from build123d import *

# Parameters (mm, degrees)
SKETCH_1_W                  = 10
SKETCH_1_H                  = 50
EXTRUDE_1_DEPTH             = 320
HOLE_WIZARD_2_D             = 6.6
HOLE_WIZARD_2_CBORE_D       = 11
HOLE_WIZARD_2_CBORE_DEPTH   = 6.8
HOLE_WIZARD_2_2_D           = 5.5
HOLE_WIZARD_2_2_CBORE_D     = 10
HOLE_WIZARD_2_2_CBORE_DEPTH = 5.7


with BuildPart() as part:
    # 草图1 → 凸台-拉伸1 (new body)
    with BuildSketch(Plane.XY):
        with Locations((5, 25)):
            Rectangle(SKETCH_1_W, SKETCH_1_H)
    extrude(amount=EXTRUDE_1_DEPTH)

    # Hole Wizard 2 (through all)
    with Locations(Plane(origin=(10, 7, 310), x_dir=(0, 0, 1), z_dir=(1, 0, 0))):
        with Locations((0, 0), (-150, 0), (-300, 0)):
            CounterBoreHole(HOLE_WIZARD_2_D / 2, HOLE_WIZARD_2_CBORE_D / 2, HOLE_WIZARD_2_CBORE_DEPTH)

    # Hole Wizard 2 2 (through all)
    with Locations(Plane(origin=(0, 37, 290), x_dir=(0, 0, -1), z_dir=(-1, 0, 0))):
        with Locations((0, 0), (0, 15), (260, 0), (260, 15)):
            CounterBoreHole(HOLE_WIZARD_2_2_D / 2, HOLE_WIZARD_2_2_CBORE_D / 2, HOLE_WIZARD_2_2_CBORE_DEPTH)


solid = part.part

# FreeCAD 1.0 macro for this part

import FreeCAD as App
import Part
import Sketcher

doc = App.newDocument("Part")
body = doc.addObject("PartDesign::Body", "Body")

# Sketch on XY plane
sketch1 = body.newObject("Sketcher::SketchObject", "Sketch")
sketch1.AttachmentSupport = (doc.getObject("XY_Plane"), [""])
sketch1.MapMode = "FlatFace"
sketch1.addGeometry(Part.LineSegment(App.Vector(0, 50, 0), App.Vector(0, 0, 0)), False)
sketch1.addGeometry(Part.LineSegment(App.Vector(0, 0, 0), App.Vector(10, 0, 0)), False)
sketch1.addGeometry(Part.LineSegment(App.Vector(10, 0, 0), App.Vector(10, 50, 0)), False)
sketch1.addGeometry(Part.LineSegment(App.Vector(10, 50, 0), App.Vector(0, 50, 0)), False)
sketch1.addConstraint(Sketcher.Constraint("Coincident", 0, 2, 1, 1))
sketch1.addConstraint(Sketcher.Constraint("Coincident", 1, 2, 2, 1))
sketch1.addConstraint(Sketcher.Constraint("Coincident", 2, 2, 3, 1))
sketch1.addConstraint(Sketcher.Constraint("Coincident", 3, 2, 0, 1))
sketch1.addConstraint(Sketcher.Constraint("Vertical", 0))
sketch1.addConstraint(Sketcher.Constraint("Horizontal", 1))
sketch1.addConstraint(Sketcher.Constraint("Vertical", 2))
sketch1.addConstraint(Sketcher.Constraint("Horizontal", 3))
sketch1.addConstraint(Sketcher.Constraint("Coincident", 0, 2, -1, 1))
sketch1.addConstraint(Sketcher.Constraint("DistanceX", 1, 1, 1, 2, 10.0))
sketch1.addConstraint(Sketcher.Constraint("DistanceY", 0, 2, 0, 1, 50.0))
pad1 = body.newObject("PartDesign::Pad", "Pad")
pad1.Profile = sketch1
pad1.Length = 320

# Sketch on YZ plane
sketch2 = body.newObject("Sketcher::SketchObject", "Sketch001")
sketch2.AttachmentSupport = (doc.getObject("YZ_Plane"), [""])
sketch2.MapMode = "FlatFace"
sketch2.AttachmentOffset = App.Placement(App.Vector(0, 0, 10), App.Rotation())
sketch2.addGeometry(Part.Circle(App.Vector(7, 310, 0), App.Vector(0, 0, 1), 3.3), False)
sketch2.addGeometry(Part.Circle(App.Vector(7, 160, 0), App.Vector(0, 0, 1), 3.3), False)
sketch2.addGeometry(Part.Circle(App.Vector(7, 10, 0), App.Vector(0, 0, 1), 3.3), False)
sketch2.addConstraint(Sketcher.Constraint("Equal", 0, 1))
sketch2.addConstraint(Sketcher.Constraint("Equal", 1, 2))
sketch2.addConstraint(Sketcher.Constraint("Vertical", 0, 3, 1, 3))
sketch2.addConstraint(Sketcher.Constraint("Vertical", 1, 3, 2, 3))
sketch2.addConstraint(Sketcher.Constraint("Diameter", 0, 6.6))
sketch2.addConstraint(Sketcher.Constraint("DistanceX", -1, 1, 0, 3, 7.0))
sketch2.addConstraint(Sketcher.Constraint("DistanceY", -1, 1, 0, 3, 310.0))
sketch2.addConstraint(Sketcher.Constraint("DistanceY", -1, 1, 1, 3, 160.0))
sketch2.addConstraint(Sketcher.Constraint("DistanceY", -1, 1, 2, 3, 10.0))
doc.recompute()
hole = body.newObject("PartDesign::Hole", "Hole")
hole.Profile = sketch2
hole.ThreadType = "None"
hole.Diameter = 6.6
hole.DepthType = "ThroughAll"
hole.HoleCutType = "Counterbore"
hole.HoleCutDiameter = 11
hole.HoleCutDepth = 6.8

# Sketch on YZ plane
sketch3 = body.newObject("Sketcher::SketchObject", "Sketch002")
sketch3.AttachmentSupport = (doc.getObject("YZ_Plane"), [""])
sketch3.MapMode = "FlatFace"
sketch3.addGeometry(Part.Circle(App.Vector(37, 290, 0), App.Vector(0, 0, 1), 2.8), False)
sketch3.addGeometry(Part.Circle(App.Vector(22, 290, 0), App.Vector(0, 0, 1), 2.8), False)
sketch3.addGeometry(Part.Circle(App.Vector(37, 30, 0), App.Vector(0, 0, 1), 2.8), False)
sketch3.addGeometry(Part.Circle(App.Vector(22, 30, 0), App.Vector(0, 0, 1), 2.8), False)
sketch3.addConstraint(Sketcher.Constraint("Equal", 0, 1))
sketch3.addConstraint(Sketcher.Constraint("Equal", 1, 2))
sketch3.addConstraint(Sketcher.Constraint("Equal", 2, 3))
sketch3.addConstraint(Sketcher.Constraint("Horizontal", 0, 3, 1, 3))
sketch3.addConstraint(Sketcher.Constraint("Horizontal", 2, 3, 3, 3))
sketch3.addConstraint(Sketcher.Constraint("Vertical", 0, 3, 2, 3))
sketch3.addConstraint(Sketcher.Constraint("Vertical", 1, 3, 3, 3))
sketch3.addConstraint(Sketcher.Constraint("Diameter", 0, 5.5))
sketch3.addConstraint(Sketcher.Constraint("DistanceX", -1, 1, 0, 3, 37.0))
sketch3.addConstraint(Sketcher.Constraint("DistanceY", -1, 1, 0, 3, 290.0))
sketch3.addConstraint(Sketcher.Constraint("DistanceX", -1, 1, 1, 3, 22.0))
sketch3.addConstraint(Sketcher.Constraint("DistanceY", -1, 1, 2, 3, 30.0))
doc.recompute()
hole2 = body.newObject("PartDesign::Hole", "Hole001")
hole2.Profile = sketch3
hole2.ThreadType = "None"
hole2.Diameter = 5.5
hole2.DepthType = "ThroughAll"
hole2.HoleCutType = "Counterbore"
hole2.HoleCutDiameter = 10
hole2.HoleCutDepth = 5.7
hole2.Reversed = True

doc.recompute()
